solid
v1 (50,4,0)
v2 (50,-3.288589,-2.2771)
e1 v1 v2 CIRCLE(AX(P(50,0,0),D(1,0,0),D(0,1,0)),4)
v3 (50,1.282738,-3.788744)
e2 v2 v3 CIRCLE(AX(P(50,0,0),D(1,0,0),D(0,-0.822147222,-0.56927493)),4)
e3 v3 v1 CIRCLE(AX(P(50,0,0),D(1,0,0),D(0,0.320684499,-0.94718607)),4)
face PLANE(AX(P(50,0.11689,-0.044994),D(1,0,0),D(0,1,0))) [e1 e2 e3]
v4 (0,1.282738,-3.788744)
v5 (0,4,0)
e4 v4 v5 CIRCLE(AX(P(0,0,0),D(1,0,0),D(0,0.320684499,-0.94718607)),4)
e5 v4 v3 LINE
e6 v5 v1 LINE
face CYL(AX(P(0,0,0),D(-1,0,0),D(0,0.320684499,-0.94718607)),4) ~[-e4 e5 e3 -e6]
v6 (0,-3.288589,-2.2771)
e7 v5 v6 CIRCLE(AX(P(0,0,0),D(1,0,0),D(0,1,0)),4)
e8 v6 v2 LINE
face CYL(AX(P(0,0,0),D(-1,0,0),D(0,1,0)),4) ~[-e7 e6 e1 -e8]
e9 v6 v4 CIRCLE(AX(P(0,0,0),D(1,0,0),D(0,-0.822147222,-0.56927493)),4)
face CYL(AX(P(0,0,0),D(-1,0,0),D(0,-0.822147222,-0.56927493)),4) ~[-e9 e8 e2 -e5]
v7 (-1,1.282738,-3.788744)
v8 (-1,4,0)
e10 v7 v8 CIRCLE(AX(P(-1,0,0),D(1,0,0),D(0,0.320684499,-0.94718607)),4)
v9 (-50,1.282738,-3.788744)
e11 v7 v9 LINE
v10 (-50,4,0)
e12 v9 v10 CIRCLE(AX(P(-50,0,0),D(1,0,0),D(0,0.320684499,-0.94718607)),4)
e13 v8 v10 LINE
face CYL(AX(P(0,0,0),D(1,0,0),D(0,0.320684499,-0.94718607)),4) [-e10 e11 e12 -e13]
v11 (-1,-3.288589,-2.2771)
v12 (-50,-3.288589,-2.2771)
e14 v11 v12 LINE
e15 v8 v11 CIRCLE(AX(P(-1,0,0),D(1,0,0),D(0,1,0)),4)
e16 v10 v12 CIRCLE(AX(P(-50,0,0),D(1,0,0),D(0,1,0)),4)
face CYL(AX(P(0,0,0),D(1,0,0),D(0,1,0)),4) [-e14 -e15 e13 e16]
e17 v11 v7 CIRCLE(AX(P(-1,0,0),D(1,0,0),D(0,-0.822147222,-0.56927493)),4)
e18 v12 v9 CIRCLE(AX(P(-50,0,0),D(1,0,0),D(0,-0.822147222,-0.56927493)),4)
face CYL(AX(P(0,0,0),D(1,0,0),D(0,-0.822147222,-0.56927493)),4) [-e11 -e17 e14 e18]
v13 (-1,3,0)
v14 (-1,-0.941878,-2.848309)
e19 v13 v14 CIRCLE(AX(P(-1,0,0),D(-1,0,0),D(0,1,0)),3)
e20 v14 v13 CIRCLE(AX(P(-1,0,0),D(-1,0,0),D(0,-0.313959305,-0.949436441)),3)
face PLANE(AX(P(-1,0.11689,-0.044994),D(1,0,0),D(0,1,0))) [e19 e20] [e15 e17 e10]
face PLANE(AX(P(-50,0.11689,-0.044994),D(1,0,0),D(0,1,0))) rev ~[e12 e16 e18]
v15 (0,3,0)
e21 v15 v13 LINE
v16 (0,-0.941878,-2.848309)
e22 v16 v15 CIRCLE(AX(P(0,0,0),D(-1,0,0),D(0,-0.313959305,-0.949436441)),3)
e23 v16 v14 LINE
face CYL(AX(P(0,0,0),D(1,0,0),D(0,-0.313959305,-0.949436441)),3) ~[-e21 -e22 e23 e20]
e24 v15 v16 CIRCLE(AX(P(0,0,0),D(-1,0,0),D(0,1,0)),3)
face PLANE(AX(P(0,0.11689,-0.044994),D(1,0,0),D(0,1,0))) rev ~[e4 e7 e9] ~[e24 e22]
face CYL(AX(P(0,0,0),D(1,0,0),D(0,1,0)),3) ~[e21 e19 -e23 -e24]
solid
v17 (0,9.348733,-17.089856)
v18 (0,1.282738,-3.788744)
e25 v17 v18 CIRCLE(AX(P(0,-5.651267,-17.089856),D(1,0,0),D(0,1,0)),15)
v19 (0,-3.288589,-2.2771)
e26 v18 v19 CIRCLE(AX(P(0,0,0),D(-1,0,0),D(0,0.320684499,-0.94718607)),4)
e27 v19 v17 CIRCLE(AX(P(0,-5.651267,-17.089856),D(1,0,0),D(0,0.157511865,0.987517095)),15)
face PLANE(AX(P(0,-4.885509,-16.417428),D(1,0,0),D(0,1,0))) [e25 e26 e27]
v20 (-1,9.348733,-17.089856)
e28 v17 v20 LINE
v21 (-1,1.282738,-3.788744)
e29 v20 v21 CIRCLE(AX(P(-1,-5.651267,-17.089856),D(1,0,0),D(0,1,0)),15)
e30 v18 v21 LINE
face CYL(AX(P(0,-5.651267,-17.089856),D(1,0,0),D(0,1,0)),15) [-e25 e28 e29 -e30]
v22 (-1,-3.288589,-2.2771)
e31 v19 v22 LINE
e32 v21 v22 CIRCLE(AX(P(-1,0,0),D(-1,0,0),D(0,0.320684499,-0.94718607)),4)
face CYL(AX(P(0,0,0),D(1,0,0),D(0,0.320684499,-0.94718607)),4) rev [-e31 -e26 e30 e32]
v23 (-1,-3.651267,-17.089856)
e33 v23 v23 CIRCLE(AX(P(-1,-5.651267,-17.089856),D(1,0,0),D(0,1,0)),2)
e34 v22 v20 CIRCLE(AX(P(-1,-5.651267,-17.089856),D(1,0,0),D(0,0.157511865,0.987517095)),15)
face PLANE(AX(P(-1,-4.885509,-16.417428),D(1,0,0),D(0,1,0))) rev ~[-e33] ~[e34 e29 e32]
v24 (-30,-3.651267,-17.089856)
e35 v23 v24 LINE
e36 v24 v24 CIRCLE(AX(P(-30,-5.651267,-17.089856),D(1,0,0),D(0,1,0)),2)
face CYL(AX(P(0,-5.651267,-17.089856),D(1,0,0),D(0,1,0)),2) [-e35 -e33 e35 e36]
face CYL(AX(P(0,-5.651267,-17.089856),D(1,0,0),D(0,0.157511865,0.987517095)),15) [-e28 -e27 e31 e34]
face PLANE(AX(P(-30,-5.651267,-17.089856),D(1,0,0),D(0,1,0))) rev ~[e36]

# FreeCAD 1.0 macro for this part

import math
import FreeCAD as App
import Part
import Sketcher

V = App.Vector
Q = App.Units.Quantity

doc = App.newDocument("Part")
params = doc.addObject("Spreadsheet::Sheet", "Params")
for row, (alias, value) in enumerate([
    ("sketch1_radius", "4 mm"),
    ("pad1_length", "50 mm"),
    ("pad1_length2", "50 mm"),
    ("sketch2_radius", "4 mm"),
    ("sketch2_radius2", "3 mm"),
    ("pocket1_length", "1 mm"),
    ("sketch3_diameter", "4 mm"),
    ("sketch3_radius", "4 mm"),
    ("sketch3_radius2", "15 mm"),
    ("pad2_length", "1 mm"),
    ("sketch4_diameter", "4 mm"),
    ("pad3_length", "30 mm"),
], start=1):
    params.set(f"A{row}", alias)
    params.set(f"B{row}", "=" + value)
    params.setAlias(f"B{row}", alias)

body = doc.addObject("PartDesign::Body", "Body")

sketch1 = doc.addObject("Sketcher::SketchObject", "Sketch")
body.addObject(sketch1)
sketch1.AttachmentSupport = (doc.YZ_Plane, [""])
sketch1.MapMode = "FlatFace"
sketch1.addGeometry(Part.ArcOfCircle(Part.Circle(V(0, 0, 0), V(0, 0, 1), 4), math.radians(-71), math.radians(0)), False)
sketch1.addGeometry(Part.ArcOfCircle(Part.Circle(V(0, 0, 0), V(0, 0, 1), 4), math.radians(0), math.radians(215)), False)
sketch1.addGeometry(Part.ArcOfCircle(Part.Circle(V(0, 0, 0), V(0, 0, 1), 4), math.radians(-145), math.radians(-71)), False)
sketch1.addConstraint(Sketcher.Constraint("Tangent", 0, 2, 1, 1))
sketch1.addConstraint(Sketcher.Constraint("Tangent", 1, 2, 2, 1))
sketch1.addConstraint(Sketcher.Constraint("Tangent", 2, 2, 0, 1))
sketch1.addConstraint(Sketcher.Constraint("Coincident", 0, 3, -1, 1))
sketch1.addConstraint(Sketcher.Constraint("PointOnObject", 0, 2, -1))
sketch1.addConstraint(Sketcher.Constraint("Radius", 0, Q("4 mm")))
sketch1.addConstraint(Sketcher.Constraint("DistanceY", 1, 2, -1, 1, Q("2.2771 mm")))
sketch1.addConstraint(Sketcher.Constraint("DistanceX", -1, 1, 2, 2, Q("1.282738 mm")))
sketch1.setExpression("Constraints[5]", "Params.sketch1_radius")
pad1 = doc.addObject("PartDesign::Pad", "Pad")
body.addObject(pad1)
pad1.Profile = sketch1
pad1.Type = "TwoLengths"
pad1.setExpression("Length", "Params.pad1_length")
pad1.setExpression("Length2", "Params.pad1_length2")

sketch2 = doc.addObject("Sketcher::SketchObject", "Sketch001")
body.addObject(sketch2)
sketch2.AttachmentSupport = (doc.YZ_Plane, [""])
sketch2.MapMode = "FlatFace"
sketch2.addGeometry(Part.ArcOfCircle(Part.Circle(V(0, 0, 0), V(0, 0, 1), 4), math.radians(0), math.radians(215)), False)
sketch2.addGeometry(Part.ArcOfCircle(Part.Circle(V(0, 0, 0), V(0, 0, 1), 4), math.radians(-145), math.radians(-71)), False)
sketch2.addGeometry(Part.ArcOfCircle(Part.Circle(V(0, 0, 0), V(0, 0, 1), 4), math.radians(-71), math.radians(0)), False)
sketch2.addGeometry(Part.ArcOfCircle(Part.Circle(V(0, 0, 0), V(0, 0, 1), 3), math.radians(-108), math.radians(0)), False)
sketch2.addGeometry(Part.ArcOfCircle(Part.Circle(V(0, 0, 0), V(0, 0, 1), 3), math.radians(0), math.radians(252)), False)
sketch2.addConstraint(Sketcher.Constraint("Tangent", 0, 2, 1, 1))
sketch2.addConstraint(Sketcher.Constraint("Tangent", 1, 2, 2, 1))
sketch2.addConstraint(Sketcher.Constraint("Tangent", 2, 2, 0, 1))
sketch2.addConstraint(Sketcher.Constraint("Tangent", 3, 1, 4, 2))
sketch2.addConstraint(Sketcher.Constraint("Coincident", 4, 1, 3, 2))
sketch2.addConstraint(Sketcher.Constraint("Coincident", 0, 3, -1, 1))
sketch2.addConstraint(Sketcher.Constraint("Coincident", 3, 3, -1, 1))
sketch2.addConstraint(Sketcher.Constraint("PointOnObject", 2, 2, -1))
sketch2.addConstraint(Sketcher.Constraint("PointOnObject", 4, 1, -1))
sketch2.addConstraint(Sketcher.Constraint("Radius", 0, Q("4 mm")))
sketch2.addConstraint(Sketcher.Constraint("Radius", 3, Q("3 mm")))
sketch2.addConstraint(Sketcher.Constraint("DistanceY", 0, 2, -1, 1, Q("2.2771 mm")))
sketch2.addConstraint(Sketcher.Constraint("DistanceY", 3, 1, -1, 1, Q("2.848309 mm")))
sketch2.addConstraint(Sketcher.Constraint("DistanceX", -1, 1, 1, 2, Q("1.282738 mm")))
sketch2.setExpression("Constraints[9]", "Params.sketch2_radius")
sketch2.setExpression("Constraints[10]", "Params.sketch2_radius2")
pocket1 = doc.addObject("PartDesign::Pocket", "Pocket")
body.addObject(pocket1)
pocket1.Profile = sketch2
pocket1.setExpression("Length", "Params.pocket1_length")
body2 = doc.addObject("PartDesign::Body", "Body001")

sketch3 = doc.addObject("Sketcher::SketchObject", "Sketch002")
body2.addObject(sketch3)
sketch3.AttachmentSupport = (doc.getObject("YZ_Plane001"), [""])
sketch3.MapMode = "FlatFace"
sketch3.addGeometry(Part.ArcOfCircle(Part.Circle(V(0, 0, 0), V(0, 0, 1), 4), math.radians(-145), math.radians(-71)), False)
sketch3.addGeometry(Part.ArcOfCircle(Part.Circle(V(-5.7, -17.1, 0), V(0, 0, 1), 15), math.radians(81), math.radians(360)), False)
sketch3.addGeometry(Part.ArcOfCircle(Part.Circle(V(-5.7, -17.1, 0), V(0, 0, 1), 15), math.radians(0), math.radians(62)), False)
sketch3.addGeometry(Part.Circle(V(-5.7, -17.1, 0), V(0, 0, 1), 2), False)
sketch3.addConstraint(Sketcher.Constraint("Coincident", 0, 1, 1, 1))
sketch3.addConstraint(Sketcher.Constraint("Tangent", 1, 2, 2, 1))
sketch3.addConstraint(Sketcher.Constraint("Coincident", 2, 2, 0, 2))
sketch3.addConstraint(Sketcher.Constraint("Coincident", 0, 3, -1, 1))
sketch3.addConstraint(Sketcher.Constraint("Coincident", 3, 3, 1, 3))
sketch3.addConstraint(Sketcher.Constraint("Equal", 1, 2))
sketch3.addConstraint(Sketcher.Constraint("Horizontal", 3, 3, 1, 2))
sketch3.addConstraint(Sketcher.Constraint("Diameter", 3, Q("4 mm")))
sketch3.addConstraint(Sketcher.Constraint("Radius", 0, Q("4 mm")))
sketch3.addConstraint(Sketcher.Constraint("Radius", 1, Q("15 mm")))
sketch3.addConstraint(Sketcher.Constraint("DistanceY", 0, 1, -1, 1, Q("2.2771 mm")))
sketch3.addConstraint(Sketcher.Constraint("DistanceY", 1, 3, 2, 2, Q("13.301112 mm")))
sketch3.setExpression("Constraints[7]", "Params.sketch3_diameter")
sketch3.setExpression("Constraints[8]", "Params.sketch3_radius")
sketch3.setExpression("Constraints[9]", "Params.sketch3_radius2")
pad2 = doc.addObject("PartDesign::Pad", "Pad001")
body2.addObject(pad2)
pad2.Profile = sketch3
pad2.setExpression("Length", "Params.pad2_length")
pad2.Reversed = True

sketch4 = doc.addObject("Sketcher::SketchObject", "Sketch003")
body2.addObject(sketch4)
sketch4.AttachmentSupport = (doc.getObject("YZ_Plane001"), [""])
sketch4.MapMode = "FlatFace"
sketch4.addGeometry(Part.Circle(V(-5.7, -17.1, 0), V(0, 0, 1), 2), False)
sketch4.addConstraint(Sketcher.Constraint("Diameter", 0, Q("4 mm")))
sketch4.addConstraint(Sketcher.Constraint("DistanceX", 0, 3, -1, 1, Q("5.651267 mm")))
sketch4.addConstraint(Sketcher.Constraint("DistanceY", 0, 3, -1, 1, Q("17.089856 mm")))
sketch4.setExpression("Constraints[0]", "Params.sketch4_diameter")
pad3 = doc.addObject("PartDesign::Pad", "Pad002")
body2.addObject(pad3)
pad3.Profile = sketch4
pad3.setExpression("Length", "Params.pad3_length")
pad3.Reversed = True

doc.recompute()
